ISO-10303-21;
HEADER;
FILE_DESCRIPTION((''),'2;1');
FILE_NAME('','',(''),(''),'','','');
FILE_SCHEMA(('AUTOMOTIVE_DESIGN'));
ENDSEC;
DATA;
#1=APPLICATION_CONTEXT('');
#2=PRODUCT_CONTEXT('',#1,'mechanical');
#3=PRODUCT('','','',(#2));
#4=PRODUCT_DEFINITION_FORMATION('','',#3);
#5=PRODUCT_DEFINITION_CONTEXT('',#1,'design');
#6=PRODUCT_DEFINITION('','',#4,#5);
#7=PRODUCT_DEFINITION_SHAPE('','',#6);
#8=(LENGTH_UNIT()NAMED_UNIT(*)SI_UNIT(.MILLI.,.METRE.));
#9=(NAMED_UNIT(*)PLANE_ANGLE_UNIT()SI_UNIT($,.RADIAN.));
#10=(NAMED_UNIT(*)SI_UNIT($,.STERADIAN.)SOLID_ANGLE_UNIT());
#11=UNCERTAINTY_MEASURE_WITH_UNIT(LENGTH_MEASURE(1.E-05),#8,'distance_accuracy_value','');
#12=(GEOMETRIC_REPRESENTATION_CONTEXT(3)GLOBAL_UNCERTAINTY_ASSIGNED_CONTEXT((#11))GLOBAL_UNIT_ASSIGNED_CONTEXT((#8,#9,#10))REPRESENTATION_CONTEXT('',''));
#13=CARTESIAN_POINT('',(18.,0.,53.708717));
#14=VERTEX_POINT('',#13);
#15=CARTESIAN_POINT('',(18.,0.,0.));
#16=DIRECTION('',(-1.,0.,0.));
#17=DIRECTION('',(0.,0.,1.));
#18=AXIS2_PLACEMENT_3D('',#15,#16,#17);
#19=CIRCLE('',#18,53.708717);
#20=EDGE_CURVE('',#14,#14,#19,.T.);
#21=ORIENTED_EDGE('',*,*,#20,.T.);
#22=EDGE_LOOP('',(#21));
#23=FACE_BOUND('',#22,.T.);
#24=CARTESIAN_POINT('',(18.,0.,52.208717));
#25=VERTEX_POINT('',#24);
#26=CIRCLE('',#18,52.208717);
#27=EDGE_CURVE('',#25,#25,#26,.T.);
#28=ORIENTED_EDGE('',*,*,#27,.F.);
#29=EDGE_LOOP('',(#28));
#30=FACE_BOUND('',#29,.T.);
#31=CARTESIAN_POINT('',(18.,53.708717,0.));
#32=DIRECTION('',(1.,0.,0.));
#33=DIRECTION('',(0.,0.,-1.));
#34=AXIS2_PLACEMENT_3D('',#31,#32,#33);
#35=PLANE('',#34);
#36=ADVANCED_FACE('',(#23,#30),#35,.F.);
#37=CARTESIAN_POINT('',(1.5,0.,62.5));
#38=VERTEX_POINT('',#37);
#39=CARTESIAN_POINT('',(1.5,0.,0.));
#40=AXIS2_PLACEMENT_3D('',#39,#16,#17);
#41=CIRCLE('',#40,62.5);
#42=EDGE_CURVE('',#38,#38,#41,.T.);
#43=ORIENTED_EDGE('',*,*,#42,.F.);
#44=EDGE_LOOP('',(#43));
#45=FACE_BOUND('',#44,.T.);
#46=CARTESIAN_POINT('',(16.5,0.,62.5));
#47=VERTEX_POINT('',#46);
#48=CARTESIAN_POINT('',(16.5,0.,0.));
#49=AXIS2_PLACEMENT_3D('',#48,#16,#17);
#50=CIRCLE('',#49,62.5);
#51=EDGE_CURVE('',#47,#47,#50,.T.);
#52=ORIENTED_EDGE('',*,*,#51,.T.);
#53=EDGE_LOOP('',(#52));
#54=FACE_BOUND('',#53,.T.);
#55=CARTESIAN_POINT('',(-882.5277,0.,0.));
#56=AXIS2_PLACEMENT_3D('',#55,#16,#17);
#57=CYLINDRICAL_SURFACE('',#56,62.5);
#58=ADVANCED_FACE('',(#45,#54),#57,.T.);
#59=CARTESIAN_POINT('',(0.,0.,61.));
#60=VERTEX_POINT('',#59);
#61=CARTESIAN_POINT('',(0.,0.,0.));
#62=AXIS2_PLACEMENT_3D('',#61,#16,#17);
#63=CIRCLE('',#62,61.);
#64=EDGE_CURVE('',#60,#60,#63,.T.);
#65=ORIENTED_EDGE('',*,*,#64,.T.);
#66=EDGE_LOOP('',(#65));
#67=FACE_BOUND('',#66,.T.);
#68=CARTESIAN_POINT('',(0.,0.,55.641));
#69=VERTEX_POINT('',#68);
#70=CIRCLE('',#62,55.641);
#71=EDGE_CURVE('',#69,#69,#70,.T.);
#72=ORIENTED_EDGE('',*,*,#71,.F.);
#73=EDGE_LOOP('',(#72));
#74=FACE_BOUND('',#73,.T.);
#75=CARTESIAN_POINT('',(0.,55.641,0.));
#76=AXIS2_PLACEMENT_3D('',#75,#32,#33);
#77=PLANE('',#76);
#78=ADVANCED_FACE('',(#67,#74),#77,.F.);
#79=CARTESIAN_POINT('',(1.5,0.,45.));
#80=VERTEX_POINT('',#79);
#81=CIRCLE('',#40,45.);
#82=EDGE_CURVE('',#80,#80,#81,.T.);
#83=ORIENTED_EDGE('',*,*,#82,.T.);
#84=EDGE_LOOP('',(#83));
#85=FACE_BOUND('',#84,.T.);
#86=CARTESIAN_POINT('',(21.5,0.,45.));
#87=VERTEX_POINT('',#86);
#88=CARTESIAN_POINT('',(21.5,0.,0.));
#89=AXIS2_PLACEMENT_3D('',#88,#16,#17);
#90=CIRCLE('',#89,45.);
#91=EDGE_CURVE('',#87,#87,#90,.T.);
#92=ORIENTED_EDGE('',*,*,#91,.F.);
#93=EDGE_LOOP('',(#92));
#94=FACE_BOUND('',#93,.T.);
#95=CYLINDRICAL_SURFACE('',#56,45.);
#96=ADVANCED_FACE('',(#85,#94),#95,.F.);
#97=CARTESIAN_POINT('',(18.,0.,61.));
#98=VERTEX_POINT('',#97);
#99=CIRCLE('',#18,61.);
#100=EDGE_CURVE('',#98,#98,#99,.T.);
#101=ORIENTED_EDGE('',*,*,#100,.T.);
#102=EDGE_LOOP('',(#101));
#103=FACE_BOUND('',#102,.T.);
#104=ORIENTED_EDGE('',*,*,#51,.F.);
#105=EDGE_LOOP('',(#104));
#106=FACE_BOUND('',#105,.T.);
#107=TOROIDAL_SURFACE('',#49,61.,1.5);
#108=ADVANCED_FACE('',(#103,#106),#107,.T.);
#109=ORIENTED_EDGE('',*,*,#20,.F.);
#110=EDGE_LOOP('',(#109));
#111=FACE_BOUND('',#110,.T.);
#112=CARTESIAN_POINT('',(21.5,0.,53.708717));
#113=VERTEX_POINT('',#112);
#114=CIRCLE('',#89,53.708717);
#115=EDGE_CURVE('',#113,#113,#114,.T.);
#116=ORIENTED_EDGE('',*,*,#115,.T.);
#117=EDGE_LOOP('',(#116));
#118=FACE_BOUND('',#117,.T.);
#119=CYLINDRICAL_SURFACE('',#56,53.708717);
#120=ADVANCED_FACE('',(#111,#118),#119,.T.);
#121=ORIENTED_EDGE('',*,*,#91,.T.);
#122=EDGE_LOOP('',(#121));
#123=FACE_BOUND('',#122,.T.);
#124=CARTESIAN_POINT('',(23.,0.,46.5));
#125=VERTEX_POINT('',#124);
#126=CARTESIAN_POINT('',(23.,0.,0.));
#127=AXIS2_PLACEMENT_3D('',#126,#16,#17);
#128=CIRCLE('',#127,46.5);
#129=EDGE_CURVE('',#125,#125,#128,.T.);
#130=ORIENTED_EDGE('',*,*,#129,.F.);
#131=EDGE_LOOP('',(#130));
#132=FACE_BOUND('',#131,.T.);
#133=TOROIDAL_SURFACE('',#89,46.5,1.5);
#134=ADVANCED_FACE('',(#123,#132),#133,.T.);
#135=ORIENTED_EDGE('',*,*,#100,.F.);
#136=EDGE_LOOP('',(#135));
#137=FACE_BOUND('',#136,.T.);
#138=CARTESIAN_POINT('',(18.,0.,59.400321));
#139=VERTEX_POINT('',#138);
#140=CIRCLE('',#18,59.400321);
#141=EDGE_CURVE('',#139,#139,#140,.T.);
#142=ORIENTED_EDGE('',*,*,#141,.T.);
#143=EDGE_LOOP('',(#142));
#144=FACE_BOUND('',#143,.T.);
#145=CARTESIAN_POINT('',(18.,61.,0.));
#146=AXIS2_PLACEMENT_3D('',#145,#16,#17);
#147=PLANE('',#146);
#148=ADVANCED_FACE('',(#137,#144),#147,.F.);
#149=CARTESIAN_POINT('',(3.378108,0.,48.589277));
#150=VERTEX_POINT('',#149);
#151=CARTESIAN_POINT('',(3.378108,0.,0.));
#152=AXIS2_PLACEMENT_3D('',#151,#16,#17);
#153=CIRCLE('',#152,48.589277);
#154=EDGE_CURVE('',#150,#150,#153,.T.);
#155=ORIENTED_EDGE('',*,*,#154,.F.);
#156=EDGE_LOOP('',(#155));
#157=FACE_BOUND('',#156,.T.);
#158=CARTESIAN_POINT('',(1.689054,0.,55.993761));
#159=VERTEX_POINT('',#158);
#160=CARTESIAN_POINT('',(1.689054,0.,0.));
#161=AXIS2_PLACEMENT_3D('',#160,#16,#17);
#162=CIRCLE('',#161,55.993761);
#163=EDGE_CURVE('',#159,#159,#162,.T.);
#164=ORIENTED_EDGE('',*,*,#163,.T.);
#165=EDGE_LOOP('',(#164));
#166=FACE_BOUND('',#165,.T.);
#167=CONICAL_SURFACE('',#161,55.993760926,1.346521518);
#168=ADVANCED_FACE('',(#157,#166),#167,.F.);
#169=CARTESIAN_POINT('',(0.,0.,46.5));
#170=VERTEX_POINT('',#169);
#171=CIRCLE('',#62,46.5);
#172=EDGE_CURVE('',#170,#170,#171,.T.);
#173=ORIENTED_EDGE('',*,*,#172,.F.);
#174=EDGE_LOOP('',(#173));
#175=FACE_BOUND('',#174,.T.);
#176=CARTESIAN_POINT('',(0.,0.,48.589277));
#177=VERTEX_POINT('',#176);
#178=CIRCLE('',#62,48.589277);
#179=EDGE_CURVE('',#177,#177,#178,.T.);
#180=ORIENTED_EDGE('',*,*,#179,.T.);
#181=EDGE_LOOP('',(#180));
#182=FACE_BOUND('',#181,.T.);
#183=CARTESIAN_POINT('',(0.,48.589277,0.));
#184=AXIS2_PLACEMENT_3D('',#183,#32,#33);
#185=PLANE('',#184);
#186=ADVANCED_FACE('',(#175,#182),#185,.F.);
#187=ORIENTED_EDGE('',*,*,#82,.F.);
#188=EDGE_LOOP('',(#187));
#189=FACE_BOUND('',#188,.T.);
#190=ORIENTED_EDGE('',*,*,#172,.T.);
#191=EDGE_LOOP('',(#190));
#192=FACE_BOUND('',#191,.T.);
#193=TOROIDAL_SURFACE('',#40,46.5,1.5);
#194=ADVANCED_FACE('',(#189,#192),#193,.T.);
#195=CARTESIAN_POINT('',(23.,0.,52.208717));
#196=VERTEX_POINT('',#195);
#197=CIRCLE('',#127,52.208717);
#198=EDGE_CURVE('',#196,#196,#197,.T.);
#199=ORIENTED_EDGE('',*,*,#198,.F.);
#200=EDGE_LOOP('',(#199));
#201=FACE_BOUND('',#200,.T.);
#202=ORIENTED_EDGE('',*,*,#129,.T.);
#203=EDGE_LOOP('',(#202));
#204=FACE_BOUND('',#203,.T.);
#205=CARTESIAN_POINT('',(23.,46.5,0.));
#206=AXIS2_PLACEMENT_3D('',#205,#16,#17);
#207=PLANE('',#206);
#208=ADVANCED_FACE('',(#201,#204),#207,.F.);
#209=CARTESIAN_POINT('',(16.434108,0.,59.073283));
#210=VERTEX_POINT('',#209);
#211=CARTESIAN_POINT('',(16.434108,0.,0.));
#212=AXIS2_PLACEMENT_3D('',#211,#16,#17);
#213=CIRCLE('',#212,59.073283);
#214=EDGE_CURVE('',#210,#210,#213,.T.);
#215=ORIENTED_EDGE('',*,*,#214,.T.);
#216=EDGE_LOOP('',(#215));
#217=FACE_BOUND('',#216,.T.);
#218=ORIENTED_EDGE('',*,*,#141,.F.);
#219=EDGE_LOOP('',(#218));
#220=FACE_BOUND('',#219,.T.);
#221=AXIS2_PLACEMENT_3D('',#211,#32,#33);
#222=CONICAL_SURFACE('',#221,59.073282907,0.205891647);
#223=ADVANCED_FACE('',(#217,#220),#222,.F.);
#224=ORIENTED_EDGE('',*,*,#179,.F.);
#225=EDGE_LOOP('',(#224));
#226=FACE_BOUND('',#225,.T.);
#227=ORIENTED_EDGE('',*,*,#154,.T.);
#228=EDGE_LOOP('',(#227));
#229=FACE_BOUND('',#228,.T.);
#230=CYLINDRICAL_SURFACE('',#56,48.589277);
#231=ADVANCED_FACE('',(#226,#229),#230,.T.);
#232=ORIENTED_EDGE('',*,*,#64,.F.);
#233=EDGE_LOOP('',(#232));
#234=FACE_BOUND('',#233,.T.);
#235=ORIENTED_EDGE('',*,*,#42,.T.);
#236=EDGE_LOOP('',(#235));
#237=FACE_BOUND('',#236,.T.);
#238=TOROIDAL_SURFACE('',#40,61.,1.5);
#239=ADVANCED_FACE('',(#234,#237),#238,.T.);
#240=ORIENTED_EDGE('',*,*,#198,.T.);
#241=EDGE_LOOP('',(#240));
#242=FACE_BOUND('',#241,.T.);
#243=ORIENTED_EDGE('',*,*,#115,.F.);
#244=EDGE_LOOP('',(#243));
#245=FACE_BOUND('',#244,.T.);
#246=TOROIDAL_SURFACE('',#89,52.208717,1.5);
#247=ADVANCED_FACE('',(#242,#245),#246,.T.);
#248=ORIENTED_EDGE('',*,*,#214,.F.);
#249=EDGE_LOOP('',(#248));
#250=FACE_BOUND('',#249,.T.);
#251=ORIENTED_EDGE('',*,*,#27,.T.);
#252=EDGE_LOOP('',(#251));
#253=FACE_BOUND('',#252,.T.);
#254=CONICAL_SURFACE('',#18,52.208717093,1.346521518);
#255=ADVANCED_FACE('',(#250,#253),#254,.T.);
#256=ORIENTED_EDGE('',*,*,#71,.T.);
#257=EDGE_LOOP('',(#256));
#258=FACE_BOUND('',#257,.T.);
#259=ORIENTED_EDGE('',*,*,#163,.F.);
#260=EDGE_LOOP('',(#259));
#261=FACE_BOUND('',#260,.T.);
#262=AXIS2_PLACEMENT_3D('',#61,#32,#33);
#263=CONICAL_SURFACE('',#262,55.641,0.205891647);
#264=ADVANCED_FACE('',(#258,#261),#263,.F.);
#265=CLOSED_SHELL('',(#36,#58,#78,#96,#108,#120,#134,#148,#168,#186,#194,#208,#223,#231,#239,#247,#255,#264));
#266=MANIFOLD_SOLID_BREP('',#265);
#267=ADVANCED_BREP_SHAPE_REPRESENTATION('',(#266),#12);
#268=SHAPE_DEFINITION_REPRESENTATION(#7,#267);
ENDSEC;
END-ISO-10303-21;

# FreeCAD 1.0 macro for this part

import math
import FreeCAD as App
import Part
import Sketcher
Q = App.Units.Quantity

doc = App.newDocument("Part")
body = doc.addObject("PartDesign::Body", "Body")

# Sketch on XY plane
sketch1 = doc.addObject("Sketcher::SketchObject", "Sketch")
body.addObject(sketch1)
sketch1.AttachmentSupport = (doc.XY_Plane, [""])
sketch1.MapMode = "FlatFace"
sketch1.addGeometry([
    Part.LineSegment(App.Vector(0, 55.6, 0), App.Vector(1.7, 56, 0)),  # 0
    Part.LineSegment(App.Vector(1.7, 56, 0), App.Vector(3.4, 48.6, 0)),  # 1
    Part.LineSegment(App.Vector(3.4, 48.6, 0), App.Vector(0, 48.6, 0)),  # 2
    Part.LineSegment(App.Vector(0, 48.6, 0), App.Vector(0, 46.5, 0)),  # 3
    Part.ArcOfCircle(Part.Circle(App.Vector(1.5, 46.5, 0), App.Vector(0, 0, 1), 1.5), math.radians(180), math.radians(270)),  # 4
    Part.LineSegment(App.Vector(1.5, 45, 0), App.Vector(21.5, 45, 0)),  # 5
    Part.ArcOfCircle(Part.Circle(App.Vector(21.5, 46.5, 0), App.Vector(0, 0, 1), 1.5), math.radians(-90), math.radians(0)),  # 6
    Part.LineSegment(App.Vector(23, 46.5, 0), App.Vector(23, 52.2, 0)),  # 7
    Part.ArcOfCircle(Part.Circle(App.Vector(21.5, 52.2, 0), App.Vector(0, 0, 1), 1.5), math.radians(0), math.radians(90)),  # 8
    Part.LineSegment(App.Vector(21.5, 53.7, 0), App.Vector(18, 53.7, 0)),  # 9
    Part.LineSegment(App.Vector(18, 53.7, 0), App.Vector(18, 52.2, 0)),  # 10
    Part.LineSegment(App.Vector(18, 52.2, 0), App.Vector(16.4, 59.1, 0)),  # 11
    Part.LineSegment(App.Vector(16.4, 59.1, 0), App.Vector(18, 59.4, 0)),  # 12
    Part.LineSegment(App.Vector(18, 59.4, 0), App.Vector(18, 61, 0)),  # 13
    Part.ArcOfCircle(Part.Circle(App.Vector(16.5, 61, 0), App.Vector(0, 0, 1), 1.5), math.radians(0), math.radians(90)),  # 14
    Part.LineSegment(App.Vector(16.5, 62.5, 0), App.Vector(1.5, 62.5, 0)),  # 15
    Part.ArcOfCircle(Part.Circle(App.Vector(1.5, 61, 0), App.Vector(0, 0, 1), 1.5), math.radians(90), math.radians(180)),  # 16
    Part.LineSegment(App.Vector(0, 61, 0), App.Vector(0, 55.6, 0)),  # 17
], False)
sketch1.addConstraint([
    Sketcher.Constraint("Coincident", 0, 2, 1, 1),
    Sketcher.Constraint("Coincident", 1, 2, 2, 1),
    Sketcher.Constraint("Coincident", 2, 2, 3, 1),
    Sketcher.Constraint("Tangent", 3, 2, 4, 1),
    Sketcher.Constraint("Tangent", 4, 2, 5, 1),
    Sketcher.Constraint("Tangent", 5, 2, 6, 1),
    Sketcher.Constraint("Tangent", 6, 2, 7, 1),
    Sketcher.Constraint("Tangent", 7, 2, 8, 1),
    Sketcher.Constraint("Tangent", 8, 2, 9, 1),
    Sketcher.Constraint("Coincident", 9, 2, 10, 1),
    Sketcher.Constraint("Coincident", 10, 2, 11, 1),
    Sketcher.Constraint("Coincident", 11, 2, 12, 1),
    Sketcher.Constraint("Coincident", 12, 2, 13, 1),
    Sketcher.Constraint("Tangent", 13, 2, 14, 1),
    Sketcher.Constraint("Tangent", 14, 2, 15, 1),
    Sketcher.Constraint("Tangent", 15, 2, 16, 1),
    Sketcher.Constraint("Tangent", 16, 2, 17, 1),
    Sketcher.Constraint("Coincident", 17, 2, 0, 1),
    Sketcher.Constraint("Horizontal", 2),
    Sketcher.Constraint("Vertical", 3),
    Sketcher.Constraint("Horizontal", 5),
    Sketcher.Constraint("Vertical", 7),
    Sketcher.Constraint("Horizontal", 9),
    Sketcher.Constraint("Vertical", 10),
    Sketcher.Constraint("Vertical", 13),
    Sketcher.Constraint("Horizontal", 15),
    Sketcher.Constraint("Vertical", 17),
    Sketcher.Constraint("Equal", 4, 6),
    Sketcher.Constraint("Equal", 6, 8),
    Sketcher.Constraint("Equal", 8, 14),
    Sketcher.Constraint("Equal", 14, 16),
    Sketcher.Constraint("PointOnObject", 2, 2, -2),
    Sketcher.Constraint("PointOnObject", 16, 2, -2),
    Sketcher.Constraint("Parallel", 1, 11),
    Sketcher.Constraint("Parallel", 0, 12),
    Sketcher.Constraint("Horizontal", 7, 2, 10, 2),
    Sketcher.Constraint("Vertical", 10, 2, 12, 2),
    Sketcher.Constraint("Radius", 4, 1.5),
    Sketcher.Constraint("DistanceX", 5, 1, 5, 2, 20.0),
    Sketcher.Constraint("DistanceX", 15, 2, 15, 1, 15.0),
    Sketcher.Constraint("DistanceY", -1, 1, 14, 3, 61.0),
    Sketcher.Constraint("DistanceY", -1, 1, 4, 2, 45.0),
    Sketcher.Constraint("Angle", 1, Q("-77.15 deg")),
    Sketcher.Constraint("DistanceY", 17, 2, 17, 1, 5.359),
    Sketcher.Constraint("Distance", 0, 1.725498),
    Sketcher.Constraint("Distance", 11, 7.040901),
    Sketcher.Constraint("DistanceY", 13, 1, 13, 2, 1.599679),
    Sketcher.Constraint("Distance", 1, 7.594688),
    Sketcher.Constraint("Distance", 12, 1.599679),
])
revolution = doc.addObject("PartDesign::Revolution", "Revolution")
body.addObject(revolution)
revolution.Profile = sketch1
revolution.ReferenceAxis = (sketch1, ["H_Axis"])
revolution.Angle = 360

doc.recompute()
